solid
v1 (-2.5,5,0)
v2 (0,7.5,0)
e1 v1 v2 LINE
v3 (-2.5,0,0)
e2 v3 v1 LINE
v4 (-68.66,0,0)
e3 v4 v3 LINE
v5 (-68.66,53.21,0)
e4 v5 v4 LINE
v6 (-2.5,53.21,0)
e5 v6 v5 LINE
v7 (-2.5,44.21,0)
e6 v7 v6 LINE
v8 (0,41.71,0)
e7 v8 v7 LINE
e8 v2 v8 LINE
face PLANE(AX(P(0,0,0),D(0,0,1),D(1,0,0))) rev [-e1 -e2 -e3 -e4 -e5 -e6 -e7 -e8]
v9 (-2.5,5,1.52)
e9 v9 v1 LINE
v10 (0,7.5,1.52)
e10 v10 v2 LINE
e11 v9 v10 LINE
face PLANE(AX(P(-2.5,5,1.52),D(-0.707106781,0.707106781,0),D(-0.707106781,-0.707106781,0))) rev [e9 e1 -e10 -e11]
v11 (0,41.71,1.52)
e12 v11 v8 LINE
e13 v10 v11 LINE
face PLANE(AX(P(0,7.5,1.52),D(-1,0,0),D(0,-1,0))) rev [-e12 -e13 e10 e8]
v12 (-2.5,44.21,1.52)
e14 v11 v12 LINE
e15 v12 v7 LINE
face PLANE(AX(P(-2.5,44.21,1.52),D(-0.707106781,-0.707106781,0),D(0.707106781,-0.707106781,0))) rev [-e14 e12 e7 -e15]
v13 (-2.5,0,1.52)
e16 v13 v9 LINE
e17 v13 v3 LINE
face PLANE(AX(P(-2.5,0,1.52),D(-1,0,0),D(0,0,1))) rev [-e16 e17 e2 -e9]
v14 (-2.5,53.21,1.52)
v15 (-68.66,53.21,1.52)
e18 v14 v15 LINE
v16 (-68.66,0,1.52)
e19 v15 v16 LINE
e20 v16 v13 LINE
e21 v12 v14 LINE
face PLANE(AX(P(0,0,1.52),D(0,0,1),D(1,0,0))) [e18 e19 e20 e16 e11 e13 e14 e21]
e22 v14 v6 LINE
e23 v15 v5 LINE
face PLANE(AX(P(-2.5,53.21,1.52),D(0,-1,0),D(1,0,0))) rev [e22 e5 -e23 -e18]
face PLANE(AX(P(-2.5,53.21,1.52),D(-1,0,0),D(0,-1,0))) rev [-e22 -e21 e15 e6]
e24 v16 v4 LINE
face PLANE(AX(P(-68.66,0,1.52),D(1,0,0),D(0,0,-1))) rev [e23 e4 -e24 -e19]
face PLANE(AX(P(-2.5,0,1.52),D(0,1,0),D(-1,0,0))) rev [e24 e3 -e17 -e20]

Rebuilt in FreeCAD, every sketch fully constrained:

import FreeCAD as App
import Part
import Sketcher
Q = App.Units.Quantity


def add_polygon(sketch, points):
    """Adds a closed chain of lines whose ends are joined by coincident constraints."""
    first, n = sketch.GeometryCount, len(points)
    for a, b in zip(points, points[1:] + points[:1]):
        sketch.addGeometry(Part.LineSegment(App.Vector(*a, 0), App.Vector(*b, 0)), False)
    for i in range(n):
        sketch.addConstraint(Sketcher.Constraint("Coincident", first + i, 2, first + (i + 1) % n, 1))

doc = App.newDocument("Part")
body = doc.addObject("PartDesign::Body", "Body")

# Sketch on XY plane
sketch1 = body.newObject("Sketcher::SketchObject", "Sketch")
sketch1.AttachmentSupport = (doc.getObject("XY_Plane"), [""])
sketch1.MapMode = "FlatFace"
add_polygon(sketch1, [(-2.5, 44.2), (-2.5, 53.2), (-68.7, 53.2), (-68.7, 0), (-2.5, 0), (-2.5, 5), (0, 7.5), (0, 41.7)])  # lines 0-7
sketch1.addConstraint([
    Sketcher.Constraint("Vertical", 0),
    Sketcher.Constraint("Horizontal", 1),
    Sketcher.Constraint("Vertical", 2),
    Sketcher.Constraint("Horizontal", 3),
    Sketcher.Constraint("Vertical", 4),
    Sketcher.Constraint("Vertical", 6),
    Sketcher.Constraint("PointOnObject", 2, 2, -1),
    Sketcher.Constraint("PointOnObject", 5, 2, -2),
    Sketcher.Constraint("Perpendicular", 5, 7),
    Sketcher.Constraint("Vertical", 0, 2, 3, 2),
    Sketcher.Constraint("Equal", 5, 7),
    Sketcher.Constraint("DistanceY", 0, 1, 0, 2, Q("9 mm")),
    Sketcher.Constraint("DistanceY", 4, 1, 4, 2, Q("5 mm")),
    Sketcher.Constraint("DistanceX", 1, 2, 1, 1, Q("66.16 mm")),
    Sketcher.Constraint("DistanceY", 2, 2, 2, 1, Q("53.21 mm")),
    Sketcher.Constraint("DistanceY", 6, 1, 6, 2, Q("34.21 mm")),
])
pad1 = body.newObject("PartDesign::Pad", "Pad")
pad1.Profile = sketch1
pad1.Length = 1.52

doc.recompute()
